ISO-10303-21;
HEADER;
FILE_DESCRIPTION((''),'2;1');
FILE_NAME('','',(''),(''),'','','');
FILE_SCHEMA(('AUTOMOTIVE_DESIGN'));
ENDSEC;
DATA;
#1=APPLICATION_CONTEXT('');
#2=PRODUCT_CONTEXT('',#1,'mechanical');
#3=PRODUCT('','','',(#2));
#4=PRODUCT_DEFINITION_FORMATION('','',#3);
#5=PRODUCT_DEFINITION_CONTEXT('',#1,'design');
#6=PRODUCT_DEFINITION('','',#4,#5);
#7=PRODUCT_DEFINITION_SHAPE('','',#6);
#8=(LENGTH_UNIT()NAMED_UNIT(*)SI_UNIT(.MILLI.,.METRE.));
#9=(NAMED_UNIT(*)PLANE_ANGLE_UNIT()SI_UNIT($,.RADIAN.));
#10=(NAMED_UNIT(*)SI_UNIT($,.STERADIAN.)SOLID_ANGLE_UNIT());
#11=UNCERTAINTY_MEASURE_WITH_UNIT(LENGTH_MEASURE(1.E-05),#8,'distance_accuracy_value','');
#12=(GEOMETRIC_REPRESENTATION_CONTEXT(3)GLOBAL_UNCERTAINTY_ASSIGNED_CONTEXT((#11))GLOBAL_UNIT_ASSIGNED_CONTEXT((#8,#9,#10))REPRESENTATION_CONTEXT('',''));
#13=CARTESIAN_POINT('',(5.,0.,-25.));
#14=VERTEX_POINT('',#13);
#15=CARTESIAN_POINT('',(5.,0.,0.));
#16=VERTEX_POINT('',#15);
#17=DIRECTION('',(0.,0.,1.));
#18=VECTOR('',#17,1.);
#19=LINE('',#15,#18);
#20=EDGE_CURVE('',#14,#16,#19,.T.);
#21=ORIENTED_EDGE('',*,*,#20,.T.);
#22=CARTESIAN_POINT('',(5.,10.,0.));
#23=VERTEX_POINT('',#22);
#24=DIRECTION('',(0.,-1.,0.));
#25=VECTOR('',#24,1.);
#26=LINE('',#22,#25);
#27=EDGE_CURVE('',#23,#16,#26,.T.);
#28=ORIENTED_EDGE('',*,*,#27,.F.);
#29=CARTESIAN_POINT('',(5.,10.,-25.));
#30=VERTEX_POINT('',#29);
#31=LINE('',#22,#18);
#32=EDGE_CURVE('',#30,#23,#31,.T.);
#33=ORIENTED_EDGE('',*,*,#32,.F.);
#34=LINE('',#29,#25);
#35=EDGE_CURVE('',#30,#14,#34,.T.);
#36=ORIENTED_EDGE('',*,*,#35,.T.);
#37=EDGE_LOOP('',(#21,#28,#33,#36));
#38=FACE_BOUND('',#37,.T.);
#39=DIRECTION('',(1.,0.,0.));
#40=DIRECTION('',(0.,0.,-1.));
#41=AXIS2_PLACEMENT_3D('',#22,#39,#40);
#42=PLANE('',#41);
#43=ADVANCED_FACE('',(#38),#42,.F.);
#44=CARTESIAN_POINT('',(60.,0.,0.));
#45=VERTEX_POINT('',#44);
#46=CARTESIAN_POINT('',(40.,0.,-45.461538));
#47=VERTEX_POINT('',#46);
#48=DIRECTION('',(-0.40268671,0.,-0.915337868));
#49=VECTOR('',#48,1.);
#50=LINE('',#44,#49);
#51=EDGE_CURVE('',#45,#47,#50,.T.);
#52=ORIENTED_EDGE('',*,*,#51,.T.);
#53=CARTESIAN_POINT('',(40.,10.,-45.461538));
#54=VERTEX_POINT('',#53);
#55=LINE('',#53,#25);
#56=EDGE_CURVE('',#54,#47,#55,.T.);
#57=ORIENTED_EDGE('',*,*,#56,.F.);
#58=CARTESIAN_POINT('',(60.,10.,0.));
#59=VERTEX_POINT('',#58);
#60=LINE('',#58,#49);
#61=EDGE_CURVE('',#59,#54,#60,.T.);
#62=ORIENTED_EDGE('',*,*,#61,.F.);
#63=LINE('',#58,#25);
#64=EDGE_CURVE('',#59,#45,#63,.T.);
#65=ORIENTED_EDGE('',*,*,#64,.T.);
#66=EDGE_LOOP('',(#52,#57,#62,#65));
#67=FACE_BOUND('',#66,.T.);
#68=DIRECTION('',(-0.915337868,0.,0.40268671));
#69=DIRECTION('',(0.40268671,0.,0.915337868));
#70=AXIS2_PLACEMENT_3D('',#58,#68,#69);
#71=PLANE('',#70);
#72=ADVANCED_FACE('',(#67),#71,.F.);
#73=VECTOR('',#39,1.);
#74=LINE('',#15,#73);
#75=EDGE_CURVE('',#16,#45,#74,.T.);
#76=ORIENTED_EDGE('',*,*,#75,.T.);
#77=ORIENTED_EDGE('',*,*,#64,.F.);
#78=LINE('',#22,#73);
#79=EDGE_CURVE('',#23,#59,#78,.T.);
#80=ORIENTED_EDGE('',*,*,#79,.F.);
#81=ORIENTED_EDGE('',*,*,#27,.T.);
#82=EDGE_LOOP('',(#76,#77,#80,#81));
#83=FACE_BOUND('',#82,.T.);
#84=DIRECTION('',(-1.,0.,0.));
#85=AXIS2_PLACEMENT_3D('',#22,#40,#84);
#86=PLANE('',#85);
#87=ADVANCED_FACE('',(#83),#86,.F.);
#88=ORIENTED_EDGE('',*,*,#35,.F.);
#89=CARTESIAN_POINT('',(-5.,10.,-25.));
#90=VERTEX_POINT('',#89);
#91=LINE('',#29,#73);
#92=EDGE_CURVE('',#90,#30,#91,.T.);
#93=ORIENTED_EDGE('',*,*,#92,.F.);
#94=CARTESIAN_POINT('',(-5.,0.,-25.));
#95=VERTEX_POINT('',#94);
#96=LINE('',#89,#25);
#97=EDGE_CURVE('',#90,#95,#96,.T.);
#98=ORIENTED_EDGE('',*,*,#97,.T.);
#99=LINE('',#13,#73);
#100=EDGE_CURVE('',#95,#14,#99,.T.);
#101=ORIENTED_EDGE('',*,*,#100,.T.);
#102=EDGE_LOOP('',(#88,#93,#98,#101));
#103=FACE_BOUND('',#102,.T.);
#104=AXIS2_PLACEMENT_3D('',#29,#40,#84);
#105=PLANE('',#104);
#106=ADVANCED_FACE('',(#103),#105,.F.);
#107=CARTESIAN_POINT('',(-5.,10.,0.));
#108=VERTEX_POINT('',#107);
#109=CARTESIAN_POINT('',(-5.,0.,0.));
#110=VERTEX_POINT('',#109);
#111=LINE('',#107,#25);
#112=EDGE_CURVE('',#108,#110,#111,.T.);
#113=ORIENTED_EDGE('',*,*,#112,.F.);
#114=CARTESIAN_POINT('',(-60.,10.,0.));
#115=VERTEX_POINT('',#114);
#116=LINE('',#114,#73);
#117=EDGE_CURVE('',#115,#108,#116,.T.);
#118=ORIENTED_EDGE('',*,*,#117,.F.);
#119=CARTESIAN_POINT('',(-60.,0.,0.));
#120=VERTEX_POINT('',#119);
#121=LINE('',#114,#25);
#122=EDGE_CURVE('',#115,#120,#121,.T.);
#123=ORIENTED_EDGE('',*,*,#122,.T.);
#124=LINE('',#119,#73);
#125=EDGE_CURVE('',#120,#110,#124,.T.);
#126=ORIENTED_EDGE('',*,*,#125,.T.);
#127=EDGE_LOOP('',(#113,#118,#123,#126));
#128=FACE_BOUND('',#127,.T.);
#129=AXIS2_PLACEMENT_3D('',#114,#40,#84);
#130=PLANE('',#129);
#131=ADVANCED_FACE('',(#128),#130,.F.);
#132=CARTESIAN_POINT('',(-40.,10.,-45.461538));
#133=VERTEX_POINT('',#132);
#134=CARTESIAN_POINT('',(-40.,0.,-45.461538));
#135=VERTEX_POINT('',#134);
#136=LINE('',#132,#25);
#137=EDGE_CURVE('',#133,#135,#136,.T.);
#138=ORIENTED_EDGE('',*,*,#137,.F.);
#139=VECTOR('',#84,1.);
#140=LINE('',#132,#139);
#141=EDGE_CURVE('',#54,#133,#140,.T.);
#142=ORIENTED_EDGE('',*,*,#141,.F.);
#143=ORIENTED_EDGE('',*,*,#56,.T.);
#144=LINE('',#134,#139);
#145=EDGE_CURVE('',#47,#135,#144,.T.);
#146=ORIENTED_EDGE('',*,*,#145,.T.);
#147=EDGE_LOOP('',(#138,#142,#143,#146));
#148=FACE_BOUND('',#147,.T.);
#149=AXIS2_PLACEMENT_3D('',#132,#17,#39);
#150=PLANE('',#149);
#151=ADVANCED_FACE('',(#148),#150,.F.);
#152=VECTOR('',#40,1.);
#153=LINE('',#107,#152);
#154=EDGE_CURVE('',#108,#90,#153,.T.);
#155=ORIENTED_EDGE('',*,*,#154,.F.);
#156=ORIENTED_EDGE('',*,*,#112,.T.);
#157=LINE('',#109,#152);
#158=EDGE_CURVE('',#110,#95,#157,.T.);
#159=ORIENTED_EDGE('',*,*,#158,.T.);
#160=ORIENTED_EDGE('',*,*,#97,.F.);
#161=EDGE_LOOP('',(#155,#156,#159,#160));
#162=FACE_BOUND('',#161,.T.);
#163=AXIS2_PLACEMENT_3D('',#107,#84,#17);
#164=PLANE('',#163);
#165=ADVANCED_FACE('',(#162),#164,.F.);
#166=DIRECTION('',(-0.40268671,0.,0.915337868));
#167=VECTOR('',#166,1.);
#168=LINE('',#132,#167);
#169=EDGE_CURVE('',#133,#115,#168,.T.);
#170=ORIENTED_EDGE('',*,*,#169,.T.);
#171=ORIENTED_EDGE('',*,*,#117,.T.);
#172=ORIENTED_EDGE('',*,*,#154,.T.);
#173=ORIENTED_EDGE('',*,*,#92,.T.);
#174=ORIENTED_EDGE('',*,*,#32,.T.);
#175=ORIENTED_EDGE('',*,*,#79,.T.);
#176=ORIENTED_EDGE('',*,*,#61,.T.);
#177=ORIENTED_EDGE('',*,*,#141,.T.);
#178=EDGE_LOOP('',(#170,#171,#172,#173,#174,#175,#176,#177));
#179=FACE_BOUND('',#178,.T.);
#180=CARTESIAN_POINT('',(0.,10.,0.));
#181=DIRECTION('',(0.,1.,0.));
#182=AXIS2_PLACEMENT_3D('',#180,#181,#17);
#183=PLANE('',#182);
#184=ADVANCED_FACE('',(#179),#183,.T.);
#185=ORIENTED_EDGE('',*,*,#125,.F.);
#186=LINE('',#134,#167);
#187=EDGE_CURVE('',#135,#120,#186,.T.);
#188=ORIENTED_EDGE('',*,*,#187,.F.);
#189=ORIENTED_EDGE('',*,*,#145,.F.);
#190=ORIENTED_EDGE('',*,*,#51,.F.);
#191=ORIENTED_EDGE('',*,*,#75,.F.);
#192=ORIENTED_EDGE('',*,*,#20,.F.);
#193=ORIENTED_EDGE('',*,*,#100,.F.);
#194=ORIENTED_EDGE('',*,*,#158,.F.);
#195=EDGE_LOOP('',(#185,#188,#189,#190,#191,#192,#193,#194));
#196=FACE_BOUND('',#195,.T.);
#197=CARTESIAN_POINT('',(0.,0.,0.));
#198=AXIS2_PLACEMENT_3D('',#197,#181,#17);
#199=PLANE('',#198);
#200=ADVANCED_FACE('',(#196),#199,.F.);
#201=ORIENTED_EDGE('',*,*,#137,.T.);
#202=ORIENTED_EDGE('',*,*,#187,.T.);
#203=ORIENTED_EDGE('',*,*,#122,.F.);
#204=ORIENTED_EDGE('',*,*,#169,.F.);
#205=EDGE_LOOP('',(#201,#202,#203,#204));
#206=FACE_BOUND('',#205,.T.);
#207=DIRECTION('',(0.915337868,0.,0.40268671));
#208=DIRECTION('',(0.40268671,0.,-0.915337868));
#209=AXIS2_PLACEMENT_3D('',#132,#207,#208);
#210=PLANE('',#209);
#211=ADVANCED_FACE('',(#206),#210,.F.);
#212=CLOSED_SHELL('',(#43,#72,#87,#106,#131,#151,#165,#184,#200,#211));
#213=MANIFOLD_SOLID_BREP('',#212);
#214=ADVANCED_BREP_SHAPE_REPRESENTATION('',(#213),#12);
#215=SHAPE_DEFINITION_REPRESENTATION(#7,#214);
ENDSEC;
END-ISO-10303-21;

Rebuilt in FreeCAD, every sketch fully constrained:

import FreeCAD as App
import Part
import Sketcher


def add_polygon(sketch, points):
    """Adds a closed chain of lines whose ends are joined by coincident constraints."""
    first, n = sketch.GeometryCount, len(points)
    for a, b in zip(points, points[1:] + points[:1]):
        sketch.addGeometry(Part.LineSegment(App.Vector(*a, 0), App.Vector(*b, 0)), False)
    for i in range(n):
        sketch.addConstraint(Sketcher.Constraint("Coincident", first + i, 2, first + (i + 1) % n, 1))

doc = App.newDocument("Part")
body = doc.addObject("PartDesign::Body", "Body")

sketch1 = body.newObject("Sketcher::SketchObject", "Sketch")
sketch1.AttachmentSupport = (doc.getObject("XZ_Plane"), [""])
sketch1.MapMode = "FlatFace"
add_polygon(sketch1, [(-60, 0), (-5, 0), (-5, -25), (5, -25), (5, 0), (60, 0), (40, -45), (-40, -45)])
sketch1.addConstraint(Sketcher.Constraint("Horizontal", 0))
sketch1.addConstraint(Sketcher.Constraint("Vertical", 1))
sketch1.addConstraint(Sketcher.Constraint("Horizontal", 2))
sketch1.addConstraint(Sketcher.Constraint("Vertical", 3))
sketch1.addConstraint(Sketcher.Constraint("Horizontal", 4))
sketch1.addConstraint(Sketcher.Constraint("Horizontal", 6))
sketch1.addConstraint(Sketcher.Constraint("Symmetric", 0, 2, 3, 2, -1, 1))
sketch1.addConstraint(Sketcher.Constraint("Symmetric", 4, 2, 7, 2, -2))
sketch1.addConstraint(Sketcher.Constraint("Equal", 5, 7))
sketch1.addConstraint(Sketcher.Constraint("DistanceX", 0, 1, 0, 2, 55.0))
sketch1.addConstraint(Sketcher.Constraint("DistanceX", 2, 1, 2, 2, 10.0))
sketch1.addConstraint(Sketcher.Constraint("DistanceX", 6, 2, 6, 1, 80.0))
sketch1.addConstraint(Sketcher.Constraint("DistanceY", 1, 2, 1, 1, 25.0))
sketch1.addConstraint(Sketcher.Constraint("Distance", 5, 49.666402))
pad1 = body.newObject("PartDesign::Pad", "Pad")
pad1.Profile = sketch1
pad1.Length = 10
pad1.Reversed = True

doc.recompute()
